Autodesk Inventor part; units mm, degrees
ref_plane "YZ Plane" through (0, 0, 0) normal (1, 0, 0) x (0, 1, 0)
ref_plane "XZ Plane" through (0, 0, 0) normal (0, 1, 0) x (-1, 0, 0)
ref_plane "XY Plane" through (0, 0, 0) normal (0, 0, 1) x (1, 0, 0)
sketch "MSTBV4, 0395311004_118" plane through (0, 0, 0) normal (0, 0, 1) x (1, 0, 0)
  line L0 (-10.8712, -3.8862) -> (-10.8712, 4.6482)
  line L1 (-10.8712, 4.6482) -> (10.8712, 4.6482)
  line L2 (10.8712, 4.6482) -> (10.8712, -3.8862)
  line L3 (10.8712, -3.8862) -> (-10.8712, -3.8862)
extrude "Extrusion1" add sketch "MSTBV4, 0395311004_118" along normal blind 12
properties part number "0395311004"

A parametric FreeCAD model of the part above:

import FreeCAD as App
import Part
import Sketcher
Q = App.Units.Quantity


def add_polygon(sketch, points):
    """Adds a closed chain of lines whose ends are joined by coincident constraints."""
    first, n = sketch.GeometryCount, len(points)
    for a, b in zip(points, points[1:] + points[:1]):
        sketch.addGeometry(Part.LineSegment(App.Vector(*a, 0), App.Vector(*b, 0)), False)
    for i in range(n):
        sketch.addConstraint(Sketcher.Constraint("Coincident", first + i, 2, first + (i + 1) % n, 1))

doc = App.newDocument("Part")
body = doc.addObject("PartDesign::Body", "Body")

# Sketch on XY plane
sketch1 = body.newObject("Sketcher::SketchObject", "Sketch")
sketch1.AttachmentSupport = (doc.getObject("XY_Plane"), [""])
sketch1.MapMode = "FlatFace"
add_polygon(sketch1, [(-11, 5), (-11, -4), (11, -4), (11, 5)])  # lines 0-3
sketch1.addConstraint([
    Sketcher.Constraint("Vertical", 0),
    Sketcher.Constraint("Horizontal", 1),
    Sketcher.Constraint("Vertical", 2),
    Sketcher.Constraint("Horizontal", 3),
    Sketcher.Constraint("DistanceX", 1, 1, 1, 2, Q("0.856 in")),
    Sketcher.Constraint("DistanceY", 0, 2, 0, 1, Q("0.336 in")),
    Sketcher.Constraint("DistanceX", 0, 2, -1, 1, Q("0.428 in")),
    Sketcher.Constraint("DistanceY", 0, 2, -1, 1, Q("0.153 in")),
])
pad1 = body.newObject("PartDesign::Pad", "Pad")
pad1.Profile = sketch1
pad1.Length = 12

doc.recompute()
